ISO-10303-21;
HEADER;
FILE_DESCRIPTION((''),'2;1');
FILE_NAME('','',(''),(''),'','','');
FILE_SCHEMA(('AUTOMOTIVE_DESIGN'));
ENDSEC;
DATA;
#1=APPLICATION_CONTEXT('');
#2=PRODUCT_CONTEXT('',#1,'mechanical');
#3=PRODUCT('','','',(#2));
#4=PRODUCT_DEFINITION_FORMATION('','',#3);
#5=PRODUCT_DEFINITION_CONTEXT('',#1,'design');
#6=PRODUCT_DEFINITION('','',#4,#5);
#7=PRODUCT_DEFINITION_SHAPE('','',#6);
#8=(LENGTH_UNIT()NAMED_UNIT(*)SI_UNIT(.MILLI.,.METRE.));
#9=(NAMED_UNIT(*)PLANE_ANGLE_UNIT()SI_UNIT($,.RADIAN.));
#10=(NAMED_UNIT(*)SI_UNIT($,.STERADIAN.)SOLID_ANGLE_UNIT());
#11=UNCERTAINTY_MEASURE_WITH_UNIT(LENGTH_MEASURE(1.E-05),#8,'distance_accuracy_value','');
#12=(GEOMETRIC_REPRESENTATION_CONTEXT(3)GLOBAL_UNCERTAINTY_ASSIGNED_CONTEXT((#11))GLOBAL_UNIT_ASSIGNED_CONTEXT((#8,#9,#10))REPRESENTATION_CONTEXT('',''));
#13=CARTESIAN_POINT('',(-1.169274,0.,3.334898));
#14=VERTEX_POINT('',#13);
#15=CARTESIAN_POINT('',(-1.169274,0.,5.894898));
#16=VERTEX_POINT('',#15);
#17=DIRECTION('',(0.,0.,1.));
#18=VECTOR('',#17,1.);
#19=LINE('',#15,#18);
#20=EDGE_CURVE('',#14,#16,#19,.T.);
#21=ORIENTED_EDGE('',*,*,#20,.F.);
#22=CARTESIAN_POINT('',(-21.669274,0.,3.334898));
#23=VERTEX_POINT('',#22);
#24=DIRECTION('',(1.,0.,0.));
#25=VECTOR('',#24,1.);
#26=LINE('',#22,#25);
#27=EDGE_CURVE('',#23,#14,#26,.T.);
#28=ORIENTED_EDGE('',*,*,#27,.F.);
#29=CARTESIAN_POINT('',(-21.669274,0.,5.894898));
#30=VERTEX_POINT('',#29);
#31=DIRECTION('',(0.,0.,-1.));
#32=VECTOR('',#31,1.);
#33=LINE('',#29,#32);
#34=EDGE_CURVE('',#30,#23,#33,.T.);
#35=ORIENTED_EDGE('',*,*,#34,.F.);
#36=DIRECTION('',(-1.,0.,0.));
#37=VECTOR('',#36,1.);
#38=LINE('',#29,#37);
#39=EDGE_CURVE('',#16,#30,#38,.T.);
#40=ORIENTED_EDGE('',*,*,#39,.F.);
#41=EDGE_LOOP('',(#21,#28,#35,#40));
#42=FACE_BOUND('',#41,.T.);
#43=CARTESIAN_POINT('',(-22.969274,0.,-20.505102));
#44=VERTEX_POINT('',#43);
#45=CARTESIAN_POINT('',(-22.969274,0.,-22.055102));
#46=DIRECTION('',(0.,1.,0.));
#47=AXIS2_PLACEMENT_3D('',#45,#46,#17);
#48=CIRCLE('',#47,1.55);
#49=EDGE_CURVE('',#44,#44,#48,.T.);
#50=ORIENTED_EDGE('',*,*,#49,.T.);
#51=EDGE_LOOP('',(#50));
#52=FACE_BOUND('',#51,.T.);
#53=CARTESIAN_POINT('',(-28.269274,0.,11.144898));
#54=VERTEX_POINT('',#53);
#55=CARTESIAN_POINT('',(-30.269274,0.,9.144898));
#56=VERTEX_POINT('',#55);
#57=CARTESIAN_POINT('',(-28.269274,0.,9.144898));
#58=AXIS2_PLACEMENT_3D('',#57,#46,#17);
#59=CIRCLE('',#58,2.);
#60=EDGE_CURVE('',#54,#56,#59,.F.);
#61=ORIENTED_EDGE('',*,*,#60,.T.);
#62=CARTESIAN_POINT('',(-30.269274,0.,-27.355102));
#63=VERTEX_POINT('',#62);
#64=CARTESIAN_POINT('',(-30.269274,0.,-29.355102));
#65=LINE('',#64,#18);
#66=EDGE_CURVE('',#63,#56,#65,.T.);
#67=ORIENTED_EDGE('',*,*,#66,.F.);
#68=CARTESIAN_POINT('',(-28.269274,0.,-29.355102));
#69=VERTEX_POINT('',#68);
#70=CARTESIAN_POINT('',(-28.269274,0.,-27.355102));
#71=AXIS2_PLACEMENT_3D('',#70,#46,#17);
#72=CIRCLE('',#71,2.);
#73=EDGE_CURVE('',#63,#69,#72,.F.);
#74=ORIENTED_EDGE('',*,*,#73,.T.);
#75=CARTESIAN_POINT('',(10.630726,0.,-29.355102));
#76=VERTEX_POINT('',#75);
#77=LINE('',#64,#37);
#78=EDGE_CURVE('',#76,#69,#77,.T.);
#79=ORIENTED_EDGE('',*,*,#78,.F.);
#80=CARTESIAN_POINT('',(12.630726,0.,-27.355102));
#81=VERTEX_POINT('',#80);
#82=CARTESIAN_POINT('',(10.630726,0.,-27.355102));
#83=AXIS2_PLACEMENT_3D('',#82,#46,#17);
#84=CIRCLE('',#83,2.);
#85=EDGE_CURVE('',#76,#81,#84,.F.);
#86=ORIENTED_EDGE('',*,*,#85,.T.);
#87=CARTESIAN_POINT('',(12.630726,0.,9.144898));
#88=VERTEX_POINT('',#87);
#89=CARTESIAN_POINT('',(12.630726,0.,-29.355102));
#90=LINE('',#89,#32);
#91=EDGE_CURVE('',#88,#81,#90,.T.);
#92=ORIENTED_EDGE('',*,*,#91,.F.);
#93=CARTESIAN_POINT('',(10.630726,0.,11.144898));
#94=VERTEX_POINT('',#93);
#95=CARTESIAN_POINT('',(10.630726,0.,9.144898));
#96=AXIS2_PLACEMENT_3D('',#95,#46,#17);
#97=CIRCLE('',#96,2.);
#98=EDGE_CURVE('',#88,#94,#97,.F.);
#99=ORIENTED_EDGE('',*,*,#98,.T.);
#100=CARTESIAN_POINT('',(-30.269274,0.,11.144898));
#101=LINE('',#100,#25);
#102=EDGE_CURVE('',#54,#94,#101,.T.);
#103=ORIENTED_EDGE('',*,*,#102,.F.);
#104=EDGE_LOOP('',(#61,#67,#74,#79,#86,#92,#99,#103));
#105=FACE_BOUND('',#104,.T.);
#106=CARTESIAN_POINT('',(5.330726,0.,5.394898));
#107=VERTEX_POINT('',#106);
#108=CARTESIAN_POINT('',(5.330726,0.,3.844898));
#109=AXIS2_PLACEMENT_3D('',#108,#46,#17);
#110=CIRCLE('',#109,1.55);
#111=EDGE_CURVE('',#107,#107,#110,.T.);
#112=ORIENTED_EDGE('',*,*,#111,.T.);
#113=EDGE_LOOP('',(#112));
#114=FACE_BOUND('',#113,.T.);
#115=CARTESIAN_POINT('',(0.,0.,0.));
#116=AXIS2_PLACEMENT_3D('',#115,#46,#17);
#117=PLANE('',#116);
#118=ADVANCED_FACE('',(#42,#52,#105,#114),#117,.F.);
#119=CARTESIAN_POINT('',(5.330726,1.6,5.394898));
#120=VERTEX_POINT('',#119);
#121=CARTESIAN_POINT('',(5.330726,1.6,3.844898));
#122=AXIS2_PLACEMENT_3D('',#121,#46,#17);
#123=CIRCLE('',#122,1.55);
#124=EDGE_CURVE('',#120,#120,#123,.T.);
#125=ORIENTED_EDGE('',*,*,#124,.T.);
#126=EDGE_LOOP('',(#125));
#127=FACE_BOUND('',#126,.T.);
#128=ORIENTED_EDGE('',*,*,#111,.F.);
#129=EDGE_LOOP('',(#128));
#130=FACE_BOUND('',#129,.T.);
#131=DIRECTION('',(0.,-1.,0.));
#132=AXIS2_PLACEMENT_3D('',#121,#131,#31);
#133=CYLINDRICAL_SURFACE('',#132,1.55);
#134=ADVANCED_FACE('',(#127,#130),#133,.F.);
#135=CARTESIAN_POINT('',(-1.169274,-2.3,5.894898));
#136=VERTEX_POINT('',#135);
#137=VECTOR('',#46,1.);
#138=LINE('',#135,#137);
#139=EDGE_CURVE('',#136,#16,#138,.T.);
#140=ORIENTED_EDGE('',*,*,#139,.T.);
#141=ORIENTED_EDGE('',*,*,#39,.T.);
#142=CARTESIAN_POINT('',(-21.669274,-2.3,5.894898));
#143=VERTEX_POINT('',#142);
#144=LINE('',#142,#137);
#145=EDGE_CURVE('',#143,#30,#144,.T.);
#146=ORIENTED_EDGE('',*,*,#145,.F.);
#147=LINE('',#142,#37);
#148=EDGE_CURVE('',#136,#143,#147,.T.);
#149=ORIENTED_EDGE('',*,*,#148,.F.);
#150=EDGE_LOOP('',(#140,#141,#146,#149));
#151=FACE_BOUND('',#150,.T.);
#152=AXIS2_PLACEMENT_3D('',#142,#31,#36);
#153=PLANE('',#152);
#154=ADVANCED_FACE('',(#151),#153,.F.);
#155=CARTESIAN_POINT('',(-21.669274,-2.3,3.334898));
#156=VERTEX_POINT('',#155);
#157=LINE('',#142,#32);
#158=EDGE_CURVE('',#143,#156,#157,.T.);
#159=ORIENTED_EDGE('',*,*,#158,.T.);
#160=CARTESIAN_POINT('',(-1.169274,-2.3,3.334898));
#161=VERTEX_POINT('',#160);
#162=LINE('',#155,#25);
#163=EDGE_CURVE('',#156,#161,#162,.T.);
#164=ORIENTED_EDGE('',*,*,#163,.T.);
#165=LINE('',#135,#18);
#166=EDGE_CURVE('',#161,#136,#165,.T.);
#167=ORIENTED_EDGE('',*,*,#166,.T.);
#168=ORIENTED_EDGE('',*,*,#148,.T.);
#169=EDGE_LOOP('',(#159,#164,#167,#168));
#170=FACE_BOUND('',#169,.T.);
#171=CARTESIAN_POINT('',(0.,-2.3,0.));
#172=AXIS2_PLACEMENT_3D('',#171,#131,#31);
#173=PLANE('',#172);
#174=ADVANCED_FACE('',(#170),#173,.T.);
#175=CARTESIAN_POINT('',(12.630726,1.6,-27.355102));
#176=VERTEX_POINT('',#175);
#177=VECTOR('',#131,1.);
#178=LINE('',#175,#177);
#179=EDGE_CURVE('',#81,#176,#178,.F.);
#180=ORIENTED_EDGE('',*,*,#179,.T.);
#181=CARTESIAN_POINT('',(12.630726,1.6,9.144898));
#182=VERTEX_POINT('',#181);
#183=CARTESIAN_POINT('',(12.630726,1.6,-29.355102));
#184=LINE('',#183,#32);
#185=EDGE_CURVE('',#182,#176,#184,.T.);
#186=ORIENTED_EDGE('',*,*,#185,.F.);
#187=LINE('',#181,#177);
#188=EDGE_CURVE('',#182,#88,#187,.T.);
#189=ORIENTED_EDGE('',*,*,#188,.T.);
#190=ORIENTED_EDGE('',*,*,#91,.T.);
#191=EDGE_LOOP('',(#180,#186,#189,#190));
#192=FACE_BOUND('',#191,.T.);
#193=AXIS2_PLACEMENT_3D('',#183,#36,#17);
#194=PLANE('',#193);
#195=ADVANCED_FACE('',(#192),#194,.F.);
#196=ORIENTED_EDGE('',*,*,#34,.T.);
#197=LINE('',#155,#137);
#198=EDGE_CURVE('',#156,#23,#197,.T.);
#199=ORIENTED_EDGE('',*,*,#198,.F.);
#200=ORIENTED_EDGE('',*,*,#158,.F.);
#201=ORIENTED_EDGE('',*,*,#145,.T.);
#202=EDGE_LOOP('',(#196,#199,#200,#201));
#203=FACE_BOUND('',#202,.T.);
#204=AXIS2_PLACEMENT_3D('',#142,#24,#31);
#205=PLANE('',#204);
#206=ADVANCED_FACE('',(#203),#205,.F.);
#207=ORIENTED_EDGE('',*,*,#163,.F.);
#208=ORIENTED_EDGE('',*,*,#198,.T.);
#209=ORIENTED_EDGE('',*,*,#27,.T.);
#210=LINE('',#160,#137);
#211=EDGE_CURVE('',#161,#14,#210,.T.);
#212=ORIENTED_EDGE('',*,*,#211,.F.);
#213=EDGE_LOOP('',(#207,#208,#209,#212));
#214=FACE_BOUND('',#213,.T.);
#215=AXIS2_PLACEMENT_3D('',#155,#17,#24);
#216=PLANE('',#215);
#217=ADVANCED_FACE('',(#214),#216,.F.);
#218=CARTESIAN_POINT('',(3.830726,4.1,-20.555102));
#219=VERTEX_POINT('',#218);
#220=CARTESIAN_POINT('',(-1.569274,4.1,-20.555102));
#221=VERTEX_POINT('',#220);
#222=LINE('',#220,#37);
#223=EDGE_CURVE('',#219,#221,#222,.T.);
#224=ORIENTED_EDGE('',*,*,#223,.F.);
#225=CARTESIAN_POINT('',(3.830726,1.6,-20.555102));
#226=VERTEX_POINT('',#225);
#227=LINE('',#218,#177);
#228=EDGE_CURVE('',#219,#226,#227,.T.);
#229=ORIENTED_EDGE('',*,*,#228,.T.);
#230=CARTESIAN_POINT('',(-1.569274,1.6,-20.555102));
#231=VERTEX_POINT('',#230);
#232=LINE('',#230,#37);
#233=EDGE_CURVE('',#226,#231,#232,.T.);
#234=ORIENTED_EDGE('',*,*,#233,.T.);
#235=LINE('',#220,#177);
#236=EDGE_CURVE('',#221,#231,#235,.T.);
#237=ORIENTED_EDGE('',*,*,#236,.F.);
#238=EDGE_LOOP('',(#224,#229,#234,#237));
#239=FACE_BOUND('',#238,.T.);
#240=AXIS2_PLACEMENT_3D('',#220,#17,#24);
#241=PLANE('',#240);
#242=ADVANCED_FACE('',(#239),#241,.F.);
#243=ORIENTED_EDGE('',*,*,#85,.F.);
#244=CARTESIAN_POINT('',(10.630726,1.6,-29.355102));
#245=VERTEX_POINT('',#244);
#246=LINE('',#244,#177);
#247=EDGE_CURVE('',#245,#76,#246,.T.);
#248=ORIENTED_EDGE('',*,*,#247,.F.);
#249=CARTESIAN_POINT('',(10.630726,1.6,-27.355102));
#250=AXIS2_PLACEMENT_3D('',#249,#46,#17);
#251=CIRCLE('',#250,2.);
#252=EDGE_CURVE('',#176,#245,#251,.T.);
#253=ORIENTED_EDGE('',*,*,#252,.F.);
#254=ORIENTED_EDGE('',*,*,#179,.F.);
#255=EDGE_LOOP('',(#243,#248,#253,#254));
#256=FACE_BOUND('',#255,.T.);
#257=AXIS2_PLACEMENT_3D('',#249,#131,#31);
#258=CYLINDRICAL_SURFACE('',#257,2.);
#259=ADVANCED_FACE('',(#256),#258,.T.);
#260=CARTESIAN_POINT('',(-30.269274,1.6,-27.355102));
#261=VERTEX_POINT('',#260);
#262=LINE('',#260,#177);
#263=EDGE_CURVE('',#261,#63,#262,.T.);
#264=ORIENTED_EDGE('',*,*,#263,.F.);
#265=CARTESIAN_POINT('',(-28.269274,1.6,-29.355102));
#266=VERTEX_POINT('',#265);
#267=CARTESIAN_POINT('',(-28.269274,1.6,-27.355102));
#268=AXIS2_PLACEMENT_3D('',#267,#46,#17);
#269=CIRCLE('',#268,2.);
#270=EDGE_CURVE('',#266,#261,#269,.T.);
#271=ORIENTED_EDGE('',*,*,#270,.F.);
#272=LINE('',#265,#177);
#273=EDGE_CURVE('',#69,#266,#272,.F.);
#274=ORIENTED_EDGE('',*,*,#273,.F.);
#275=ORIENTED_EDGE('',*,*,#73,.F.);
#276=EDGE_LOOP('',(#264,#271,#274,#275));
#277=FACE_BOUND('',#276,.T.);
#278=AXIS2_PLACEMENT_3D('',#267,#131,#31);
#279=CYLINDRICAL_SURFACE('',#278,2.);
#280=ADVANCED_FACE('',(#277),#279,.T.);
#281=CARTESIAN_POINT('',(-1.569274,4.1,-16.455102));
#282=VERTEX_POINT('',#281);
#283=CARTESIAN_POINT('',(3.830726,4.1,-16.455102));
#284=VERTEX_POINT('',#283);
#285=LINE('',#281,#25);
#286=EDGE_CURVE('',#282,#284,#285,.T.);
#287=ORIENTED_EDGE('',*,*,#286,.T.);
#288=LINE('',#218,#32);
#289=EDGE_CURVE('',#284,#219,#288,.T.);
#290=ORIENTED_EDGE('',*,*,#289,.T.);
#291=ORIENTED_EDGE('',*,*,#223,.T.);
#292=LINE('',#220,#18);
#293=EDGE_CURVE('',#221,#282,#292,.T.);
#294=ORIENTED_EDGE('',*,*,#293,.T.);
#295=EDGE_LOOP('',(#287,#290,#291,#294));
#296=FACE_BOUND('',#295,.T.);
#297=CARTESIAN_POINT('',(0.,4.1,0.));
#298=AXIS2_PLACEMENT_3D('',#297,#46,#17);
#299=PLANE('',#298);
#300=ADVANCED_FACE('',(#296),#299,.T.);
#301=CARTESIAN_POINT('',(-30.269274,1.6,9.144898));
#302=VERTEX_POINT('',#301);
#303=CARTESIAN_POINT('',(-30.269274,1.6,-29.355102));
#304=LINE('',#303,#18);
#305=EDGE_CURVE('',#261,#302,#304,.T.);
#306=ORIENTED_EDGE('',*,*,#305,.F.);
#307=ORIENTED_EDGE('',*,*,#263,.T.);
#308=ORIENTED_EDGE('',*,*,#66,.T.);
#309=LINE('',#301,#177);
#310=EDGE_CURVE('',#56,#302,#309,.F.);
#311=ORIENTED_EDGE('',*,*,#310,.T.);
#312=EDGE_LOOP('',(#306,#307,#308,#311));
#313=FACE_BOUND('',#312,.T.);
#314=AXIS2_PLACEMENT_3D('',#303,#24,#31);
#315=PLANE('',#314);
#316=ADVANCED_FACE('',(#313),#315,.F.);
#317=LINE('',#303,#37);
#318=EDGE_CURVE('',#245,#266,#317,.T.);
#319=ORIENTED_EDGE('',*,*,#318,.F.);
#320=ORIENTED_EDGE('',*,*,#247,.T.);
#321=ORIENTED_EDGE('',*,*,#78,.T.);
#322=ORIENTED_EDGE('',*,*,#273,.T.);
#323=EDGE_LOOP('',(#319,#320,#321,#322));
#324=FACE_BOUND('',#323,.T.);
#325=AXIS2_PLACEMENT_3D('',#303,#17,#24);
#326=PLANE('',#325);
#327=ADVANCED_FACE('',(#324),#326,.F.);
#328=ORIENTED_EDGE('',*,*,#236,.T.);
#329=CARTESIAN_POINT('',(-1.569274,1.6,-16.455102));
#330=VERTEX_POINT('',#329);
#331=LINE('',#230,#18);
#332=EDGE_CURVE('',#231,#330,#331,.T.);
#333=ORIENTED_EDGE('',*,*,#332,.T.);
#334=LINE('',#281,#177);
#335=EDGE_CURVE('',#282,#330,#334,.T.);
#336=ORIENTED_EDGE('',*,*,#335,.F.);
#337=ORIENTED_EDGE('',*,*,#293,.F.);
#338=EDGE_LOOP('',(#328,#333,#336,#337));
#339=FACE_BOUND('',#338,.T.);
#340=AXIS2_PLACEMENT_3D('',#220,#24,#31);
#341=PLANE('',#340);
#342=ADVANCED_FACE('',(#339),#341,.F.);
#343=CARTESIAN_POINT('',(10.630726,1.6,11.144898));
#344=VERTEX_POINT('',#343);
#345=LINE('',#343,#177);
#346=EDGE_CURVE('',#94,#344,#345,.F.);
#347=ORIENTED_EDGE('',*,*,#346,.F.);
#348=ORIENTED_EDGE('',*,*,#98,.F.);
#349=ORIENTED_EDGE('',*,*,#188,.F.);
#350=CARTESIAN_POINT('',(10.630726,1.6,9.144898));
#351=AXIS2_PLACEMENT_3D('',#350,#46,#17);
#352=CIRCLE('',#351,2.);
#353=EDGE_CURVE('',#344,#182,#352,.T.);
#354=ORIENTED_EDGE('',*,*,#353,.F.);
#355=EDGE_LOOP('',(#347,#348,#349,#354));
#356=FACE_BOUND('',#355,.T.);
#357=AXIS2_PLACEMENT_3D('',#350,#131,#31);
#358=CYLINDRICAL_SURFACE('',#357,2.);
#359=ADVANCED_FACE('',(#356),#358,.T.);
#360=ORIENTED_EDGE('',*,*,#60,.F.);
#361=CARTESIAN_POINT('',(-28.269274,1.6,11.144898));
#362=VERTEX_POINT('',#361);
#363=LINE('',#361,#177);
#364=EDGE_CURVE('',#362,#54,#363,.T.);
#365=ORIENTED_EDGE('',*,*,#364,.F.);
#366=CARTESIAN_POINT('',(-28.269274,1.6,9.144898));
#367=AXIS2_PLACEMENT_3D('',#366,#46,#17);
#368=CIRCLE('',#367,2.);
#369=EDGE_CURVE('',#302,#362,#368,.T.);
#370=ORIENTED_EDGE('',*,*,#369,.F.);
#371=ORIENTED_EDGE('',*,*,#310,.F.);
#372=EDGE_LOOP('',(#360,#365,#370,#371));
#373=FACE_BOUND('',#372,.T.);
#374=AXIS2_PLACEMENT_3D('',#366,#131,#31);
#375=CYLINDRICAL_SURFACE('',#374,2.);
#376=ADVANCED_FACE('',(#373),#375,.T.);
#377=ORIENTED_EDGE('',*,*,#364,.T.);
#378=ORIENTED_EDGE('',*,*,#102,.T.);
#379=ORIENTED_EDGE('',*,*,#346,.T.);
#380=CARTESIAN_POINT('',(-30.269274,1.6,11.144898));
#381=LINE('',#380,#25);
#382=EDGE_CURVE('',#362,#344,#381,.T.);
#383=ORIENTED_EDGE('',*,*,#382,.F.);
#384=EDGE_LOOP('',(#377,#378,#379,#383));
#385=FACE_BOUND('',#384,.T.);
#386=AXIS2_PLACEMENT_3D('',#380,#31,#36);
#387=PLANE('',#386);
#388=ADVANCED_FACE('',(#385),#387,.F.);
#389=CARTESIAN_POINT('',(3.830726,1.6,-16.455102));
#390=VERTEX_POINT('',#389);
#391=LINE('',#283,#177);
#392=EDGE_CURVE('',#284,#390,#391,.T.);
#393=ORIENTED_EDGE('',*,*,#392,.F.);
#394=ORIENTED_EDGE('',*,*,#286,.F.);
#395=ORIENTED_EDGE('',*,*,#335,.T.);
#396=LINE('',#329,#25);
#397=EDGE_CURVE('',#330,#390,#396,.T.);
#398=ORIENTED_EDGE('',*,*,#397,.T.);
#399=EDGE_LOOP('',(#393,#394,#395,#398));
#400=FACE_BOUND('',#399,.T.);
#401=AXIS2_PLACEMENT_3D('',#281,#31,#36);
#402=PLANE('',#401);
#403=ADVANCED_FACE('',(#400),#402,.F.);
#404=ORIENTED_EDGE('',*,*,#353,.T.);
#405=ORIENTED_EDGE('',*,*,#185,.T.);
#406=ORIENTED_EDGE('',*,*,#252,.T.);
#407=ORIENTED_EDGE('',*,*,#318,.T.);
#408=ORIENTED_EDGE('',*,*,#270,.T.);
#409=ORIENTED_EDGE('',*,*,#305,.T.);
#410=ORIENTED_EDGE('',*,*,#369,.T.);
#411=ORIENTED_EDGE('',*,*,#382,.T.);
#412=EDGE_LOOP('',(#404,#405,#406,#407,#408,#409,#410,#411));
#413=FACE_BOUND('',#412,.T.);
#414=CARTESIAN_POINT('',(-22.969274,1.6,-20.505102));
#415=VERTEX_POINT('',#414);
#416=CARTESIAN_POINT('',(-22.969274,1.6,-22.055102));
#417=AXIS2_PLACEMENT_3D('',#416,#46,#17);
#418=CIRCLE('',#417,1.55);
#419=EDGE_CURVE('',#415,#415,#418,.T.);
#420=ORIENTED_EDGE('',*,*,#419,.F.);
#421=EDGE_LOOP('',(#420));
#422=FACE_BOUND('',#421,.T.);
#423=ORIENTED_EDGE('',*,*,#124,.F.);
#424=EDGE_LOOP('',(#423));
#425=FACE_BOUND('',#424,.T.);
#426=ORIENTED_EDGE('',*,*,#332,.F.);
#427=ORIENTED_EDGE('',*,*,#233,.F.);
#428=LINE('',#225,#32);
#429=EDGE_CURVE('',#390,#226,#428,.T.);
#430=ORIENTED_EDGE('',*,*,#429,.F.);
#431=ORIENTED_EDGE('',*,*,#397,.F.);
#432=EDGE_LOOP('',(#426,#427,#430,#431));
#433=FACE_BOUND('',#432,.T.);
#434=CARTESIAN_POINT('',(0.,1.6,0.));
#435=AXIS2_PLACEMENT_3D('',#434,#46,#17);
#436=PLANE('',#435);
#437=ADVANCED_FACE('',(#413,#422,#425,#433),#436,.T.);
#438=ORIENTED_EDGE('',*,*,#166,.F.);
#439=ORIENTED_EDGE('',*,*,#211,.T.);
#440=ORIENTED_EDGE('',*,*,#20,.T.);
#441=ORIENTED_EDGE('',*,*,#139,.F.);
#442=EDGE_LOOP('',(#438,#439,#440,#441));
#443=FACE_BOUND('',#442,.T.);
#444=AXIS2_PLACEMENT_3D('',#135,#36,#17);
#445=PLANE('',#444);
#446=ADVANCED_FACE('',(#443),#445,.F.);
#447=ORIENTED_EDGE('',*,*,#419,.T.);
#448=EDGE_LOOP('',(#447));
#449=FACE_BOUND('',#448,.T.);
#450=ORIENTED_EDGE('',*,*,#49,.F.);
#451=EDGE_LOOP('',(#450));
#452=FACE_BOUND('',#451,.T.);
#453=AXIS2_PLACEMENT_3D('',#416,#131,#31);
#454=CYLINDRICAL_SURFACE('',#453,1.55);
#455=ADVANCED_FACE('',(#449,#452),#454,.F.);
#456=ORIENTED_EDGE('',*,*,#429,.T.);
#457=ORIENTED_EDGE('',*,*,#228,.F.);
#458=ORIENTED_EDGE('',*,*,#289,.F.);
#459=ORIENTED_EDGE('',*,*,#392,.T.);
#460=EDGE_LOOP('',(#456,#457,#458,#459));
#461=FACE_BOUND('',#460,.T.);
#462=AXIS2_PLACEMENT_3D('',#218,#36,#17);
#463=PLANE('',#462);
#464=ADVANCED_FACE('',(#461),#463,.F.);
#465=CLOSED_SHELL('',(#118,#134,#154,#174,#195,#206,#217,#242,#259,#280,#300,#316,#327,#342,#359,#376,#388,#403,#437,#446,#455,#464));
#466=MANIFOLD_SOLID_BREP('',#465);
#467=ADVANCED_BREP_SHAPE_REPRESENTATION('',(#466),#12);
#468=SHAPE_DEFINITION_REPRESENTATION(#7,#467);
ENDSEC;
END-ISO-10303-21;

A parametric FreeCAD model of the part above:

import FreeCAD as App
import Part
import Sketcher
from FreeCAD import Vector
Q = App.Units.Quantity


def edges_at(feature, points):
    """Names of the edges that pass closest to the given points."""
    edges = feature.Shape.Edges
    near = lambda p: min(range(len(edges)), key=lambda i: edges[i].distToShape(Part.Vertex(*p))[0])
    return sorted({f"Edge{near(p) + 1}" for p in points})


def add_polygon(sketch, points):
    """Adds a closed chain of lines whose ends are joined by coincident constraints."""
    first, n = sketch.GeometryCount, len(points)
    for a, b in zip(points, points[1:] + points[:1]):
        sketch.addGeometry(Part.LineSegment(App.Vector(*a, 0), App.Vector(*b, 0)), False)
    for i in range(n):
        sketch.addConstraint(Sketcher.Constraint("Coincident", first + i, 2, first + (i + 1) % n, 1))

doc = App.newDocument("Part")
body = doc.addObject("PartDesign::Body", "Body")

# Sketch on XZ plane
sketch1 = body.newObject("Sketcher::SketchObject", "Sketch")
sketch1.AttachmentSupport = (doc.getObject("XZ_Plane"), [""])
sketch1.MapMode = "FlatFace"
add_polygon(sketch1, [(-30.3, -29.4), (-30.3, 11.1), (12.6, 11.1), (12.6, -29.4)])  # lines 0-3
sketch1.addGeometry(Part.Circle(Vector(5.3, 3.8, 0), Vector(0, 0, 1), 1.6), False)  # 4
sketch1.addGeometry(Part.Circle(Vector(-23, -22.1, 0), Vector(0, 0, 1), 1.6), False)  # 5
sketch1.addConstraint(Sketcher.Constraint("Vertical", 0))
sketch1.addConstraint(Sketcher.Constraint("Horizontal", 1))
sketch1.addConstraint(Sketcher.Constraint("Vertical", 2))
sketch1.addConstraint(Sketcher.Constraint("Horizontal", 3))
sketch1.addConstraint(Sketcher.Constraint("Equal", 4, 5))
sketch1.addConstraint(Sketcher.Constraint("Diameter", 4, Q("3.1 mm")))
sketch1.addConstraint(Sketcher.Constraint("DistanceX", 1, 1, 1, 2, Q("42.9 mm")))
sketch1.addConstraint(Sketcher.Constraint("DistanceY", 0, 1, 0, 2, Q("40.5 mm")))
sketch1.addConstraint(Sketcher.Constraint("DistanceX", 5, 3, 4, 3, Q("28.3 mm")))
sketch1.addConstraint(Sketcher.Constraint("DistanceY", 5, 3, 4, 3, Q("25.9 mm")))
sketch1.addConstraint(Sketcher.Constraint("DistanceX", 0, 2, 5, 3, Q("7.3 mm")))
sketch1.addConstraint(Sketcher.Constraint("DistanceY", 5, 3, 0, 2, Q("33.2 mm")))
sketch1.addConstraint(Sketcher.Constraint("DistanceY", -1, 1, 4, 3, Q("3.844898 mm")))
sketch1.addConstraint(Sketcher.Constraint("DistanceX", -1, 1, 4, 3, Q("5.330726 mm")))
pad1 = body.newObject("PartDesign::Pad", "Pad")
pad1.Profile = sketch1
pad1.Length = 1.6
pad1.Reversed = True
doc.recompute()

fillet = body.newObject("PartDesign::Fillet", "Fillet")
fillet.Base = (pad1, edges_at(pad1, [
    (-30.269, 0.8, -29.355),
    (12.631, 0.8, -29.355),
    (12.631, 0.8, 11.145),
    (-30.269, 0.8, 11.145),
]))
fillet.Radius = 2

# Sketch on XZ plane
sketch2 = body.newObject("Sketcher::SketchObject", "Sketch001")
sketch2.AttachmentSupport = (doc.getObject("XZ_Plane"), [""])
sketch2.MapMode = "FlatFace"
sketch2.AttachmentOffset = App.Placement(Vector(0, 0, -1.6), App.Rotation())
add_polygon(sketch2, [(-1.6, -20.6), (-1.6, -16.5), (3.8, -16.5), (3.8, -20.6)])  # lines 0-3
sketch2.addConstraint(Sketcher.Constraint("Vertical", 0))
sketch2.addConstraint(Sketcher.Constraint("Horizontal", 1))
sketch2.addConstraint(Sketcher.Constraint("Vertical", 2))
sketch2.addConstraint(Sketcher.Constraint("Horizontal", 3))
sketch2.addConstraint(Sketcher.Constraint("DistanceX", 1, 1, 1, 2, Q("5.4 mm")))
sketch2.addConstraint(Sketcher.Constraint("DistanceY", 0, 1, 0, 2, Q("4.1 mm")))
sketch2.addConstraint(Sketcher.Constraint("DistanceY", 0, 2, -1, 1, Q("16.455102 mm")))
sketch2.addConstraint(Sketcher.Constraint("DistanceX", 0, 2, -1, 1, Q("1.569274 mm")))
pad2 = body.newObject("PartDesign::Pad", "Pad001")
pad2.Profile = sketch2
pad2.Length = 2.5
pad2.Reversed = True

# Sketch on XZ plane
sketch3 = body.newObject("Sketcher::SketchObject", "Sketch002")
sketch3.AttachmentSupport = (doc.getObject("XZ_Plane"), [""])
sketch3.MapMode = "FlatFace"
add_polygon(sketch3, [(-21.7, 5.9), (-21.7, 3.3), (-1.2, 3.3), (-1.2, 5.9)])  # lines 0-3
sketch3.addConstraint(Sketcher.Constraint("Vertical", 0))
sketch3.addConstraint(Sketcher.Constraint("Horizontal", 1))
sketch3.addConstraint(Sketcher.Constraint("Vertical", 2))
sketch3.addConstraint(Sketcher.Constraint("Horizontal", 3))
sketch3.addConstraint(Sketcher.Constraint("DistanceX", 1, 1, 1, 2, Q("20.5 mm")))
sketch3.addConstraint(Sketcher.Constraint("DistanceY", 0, 2, 0, 1, Q("2.56 mm")))
sketch3.addConstraint(Sketcher.Constraint("DistanceY", -1, 1, 0, 2, Q("3.334898 mm")))
sketch3.addConstraint(Sketcher.Constraint("DistanceX", 0, 2, -1, 1, Q("21.669274 mm")))
pad3 = body.newObject("PartDesign::Pad", "Pad002")
pad3.Profile = sketch3
pad3.Length = 2.3

doc.recompute()
